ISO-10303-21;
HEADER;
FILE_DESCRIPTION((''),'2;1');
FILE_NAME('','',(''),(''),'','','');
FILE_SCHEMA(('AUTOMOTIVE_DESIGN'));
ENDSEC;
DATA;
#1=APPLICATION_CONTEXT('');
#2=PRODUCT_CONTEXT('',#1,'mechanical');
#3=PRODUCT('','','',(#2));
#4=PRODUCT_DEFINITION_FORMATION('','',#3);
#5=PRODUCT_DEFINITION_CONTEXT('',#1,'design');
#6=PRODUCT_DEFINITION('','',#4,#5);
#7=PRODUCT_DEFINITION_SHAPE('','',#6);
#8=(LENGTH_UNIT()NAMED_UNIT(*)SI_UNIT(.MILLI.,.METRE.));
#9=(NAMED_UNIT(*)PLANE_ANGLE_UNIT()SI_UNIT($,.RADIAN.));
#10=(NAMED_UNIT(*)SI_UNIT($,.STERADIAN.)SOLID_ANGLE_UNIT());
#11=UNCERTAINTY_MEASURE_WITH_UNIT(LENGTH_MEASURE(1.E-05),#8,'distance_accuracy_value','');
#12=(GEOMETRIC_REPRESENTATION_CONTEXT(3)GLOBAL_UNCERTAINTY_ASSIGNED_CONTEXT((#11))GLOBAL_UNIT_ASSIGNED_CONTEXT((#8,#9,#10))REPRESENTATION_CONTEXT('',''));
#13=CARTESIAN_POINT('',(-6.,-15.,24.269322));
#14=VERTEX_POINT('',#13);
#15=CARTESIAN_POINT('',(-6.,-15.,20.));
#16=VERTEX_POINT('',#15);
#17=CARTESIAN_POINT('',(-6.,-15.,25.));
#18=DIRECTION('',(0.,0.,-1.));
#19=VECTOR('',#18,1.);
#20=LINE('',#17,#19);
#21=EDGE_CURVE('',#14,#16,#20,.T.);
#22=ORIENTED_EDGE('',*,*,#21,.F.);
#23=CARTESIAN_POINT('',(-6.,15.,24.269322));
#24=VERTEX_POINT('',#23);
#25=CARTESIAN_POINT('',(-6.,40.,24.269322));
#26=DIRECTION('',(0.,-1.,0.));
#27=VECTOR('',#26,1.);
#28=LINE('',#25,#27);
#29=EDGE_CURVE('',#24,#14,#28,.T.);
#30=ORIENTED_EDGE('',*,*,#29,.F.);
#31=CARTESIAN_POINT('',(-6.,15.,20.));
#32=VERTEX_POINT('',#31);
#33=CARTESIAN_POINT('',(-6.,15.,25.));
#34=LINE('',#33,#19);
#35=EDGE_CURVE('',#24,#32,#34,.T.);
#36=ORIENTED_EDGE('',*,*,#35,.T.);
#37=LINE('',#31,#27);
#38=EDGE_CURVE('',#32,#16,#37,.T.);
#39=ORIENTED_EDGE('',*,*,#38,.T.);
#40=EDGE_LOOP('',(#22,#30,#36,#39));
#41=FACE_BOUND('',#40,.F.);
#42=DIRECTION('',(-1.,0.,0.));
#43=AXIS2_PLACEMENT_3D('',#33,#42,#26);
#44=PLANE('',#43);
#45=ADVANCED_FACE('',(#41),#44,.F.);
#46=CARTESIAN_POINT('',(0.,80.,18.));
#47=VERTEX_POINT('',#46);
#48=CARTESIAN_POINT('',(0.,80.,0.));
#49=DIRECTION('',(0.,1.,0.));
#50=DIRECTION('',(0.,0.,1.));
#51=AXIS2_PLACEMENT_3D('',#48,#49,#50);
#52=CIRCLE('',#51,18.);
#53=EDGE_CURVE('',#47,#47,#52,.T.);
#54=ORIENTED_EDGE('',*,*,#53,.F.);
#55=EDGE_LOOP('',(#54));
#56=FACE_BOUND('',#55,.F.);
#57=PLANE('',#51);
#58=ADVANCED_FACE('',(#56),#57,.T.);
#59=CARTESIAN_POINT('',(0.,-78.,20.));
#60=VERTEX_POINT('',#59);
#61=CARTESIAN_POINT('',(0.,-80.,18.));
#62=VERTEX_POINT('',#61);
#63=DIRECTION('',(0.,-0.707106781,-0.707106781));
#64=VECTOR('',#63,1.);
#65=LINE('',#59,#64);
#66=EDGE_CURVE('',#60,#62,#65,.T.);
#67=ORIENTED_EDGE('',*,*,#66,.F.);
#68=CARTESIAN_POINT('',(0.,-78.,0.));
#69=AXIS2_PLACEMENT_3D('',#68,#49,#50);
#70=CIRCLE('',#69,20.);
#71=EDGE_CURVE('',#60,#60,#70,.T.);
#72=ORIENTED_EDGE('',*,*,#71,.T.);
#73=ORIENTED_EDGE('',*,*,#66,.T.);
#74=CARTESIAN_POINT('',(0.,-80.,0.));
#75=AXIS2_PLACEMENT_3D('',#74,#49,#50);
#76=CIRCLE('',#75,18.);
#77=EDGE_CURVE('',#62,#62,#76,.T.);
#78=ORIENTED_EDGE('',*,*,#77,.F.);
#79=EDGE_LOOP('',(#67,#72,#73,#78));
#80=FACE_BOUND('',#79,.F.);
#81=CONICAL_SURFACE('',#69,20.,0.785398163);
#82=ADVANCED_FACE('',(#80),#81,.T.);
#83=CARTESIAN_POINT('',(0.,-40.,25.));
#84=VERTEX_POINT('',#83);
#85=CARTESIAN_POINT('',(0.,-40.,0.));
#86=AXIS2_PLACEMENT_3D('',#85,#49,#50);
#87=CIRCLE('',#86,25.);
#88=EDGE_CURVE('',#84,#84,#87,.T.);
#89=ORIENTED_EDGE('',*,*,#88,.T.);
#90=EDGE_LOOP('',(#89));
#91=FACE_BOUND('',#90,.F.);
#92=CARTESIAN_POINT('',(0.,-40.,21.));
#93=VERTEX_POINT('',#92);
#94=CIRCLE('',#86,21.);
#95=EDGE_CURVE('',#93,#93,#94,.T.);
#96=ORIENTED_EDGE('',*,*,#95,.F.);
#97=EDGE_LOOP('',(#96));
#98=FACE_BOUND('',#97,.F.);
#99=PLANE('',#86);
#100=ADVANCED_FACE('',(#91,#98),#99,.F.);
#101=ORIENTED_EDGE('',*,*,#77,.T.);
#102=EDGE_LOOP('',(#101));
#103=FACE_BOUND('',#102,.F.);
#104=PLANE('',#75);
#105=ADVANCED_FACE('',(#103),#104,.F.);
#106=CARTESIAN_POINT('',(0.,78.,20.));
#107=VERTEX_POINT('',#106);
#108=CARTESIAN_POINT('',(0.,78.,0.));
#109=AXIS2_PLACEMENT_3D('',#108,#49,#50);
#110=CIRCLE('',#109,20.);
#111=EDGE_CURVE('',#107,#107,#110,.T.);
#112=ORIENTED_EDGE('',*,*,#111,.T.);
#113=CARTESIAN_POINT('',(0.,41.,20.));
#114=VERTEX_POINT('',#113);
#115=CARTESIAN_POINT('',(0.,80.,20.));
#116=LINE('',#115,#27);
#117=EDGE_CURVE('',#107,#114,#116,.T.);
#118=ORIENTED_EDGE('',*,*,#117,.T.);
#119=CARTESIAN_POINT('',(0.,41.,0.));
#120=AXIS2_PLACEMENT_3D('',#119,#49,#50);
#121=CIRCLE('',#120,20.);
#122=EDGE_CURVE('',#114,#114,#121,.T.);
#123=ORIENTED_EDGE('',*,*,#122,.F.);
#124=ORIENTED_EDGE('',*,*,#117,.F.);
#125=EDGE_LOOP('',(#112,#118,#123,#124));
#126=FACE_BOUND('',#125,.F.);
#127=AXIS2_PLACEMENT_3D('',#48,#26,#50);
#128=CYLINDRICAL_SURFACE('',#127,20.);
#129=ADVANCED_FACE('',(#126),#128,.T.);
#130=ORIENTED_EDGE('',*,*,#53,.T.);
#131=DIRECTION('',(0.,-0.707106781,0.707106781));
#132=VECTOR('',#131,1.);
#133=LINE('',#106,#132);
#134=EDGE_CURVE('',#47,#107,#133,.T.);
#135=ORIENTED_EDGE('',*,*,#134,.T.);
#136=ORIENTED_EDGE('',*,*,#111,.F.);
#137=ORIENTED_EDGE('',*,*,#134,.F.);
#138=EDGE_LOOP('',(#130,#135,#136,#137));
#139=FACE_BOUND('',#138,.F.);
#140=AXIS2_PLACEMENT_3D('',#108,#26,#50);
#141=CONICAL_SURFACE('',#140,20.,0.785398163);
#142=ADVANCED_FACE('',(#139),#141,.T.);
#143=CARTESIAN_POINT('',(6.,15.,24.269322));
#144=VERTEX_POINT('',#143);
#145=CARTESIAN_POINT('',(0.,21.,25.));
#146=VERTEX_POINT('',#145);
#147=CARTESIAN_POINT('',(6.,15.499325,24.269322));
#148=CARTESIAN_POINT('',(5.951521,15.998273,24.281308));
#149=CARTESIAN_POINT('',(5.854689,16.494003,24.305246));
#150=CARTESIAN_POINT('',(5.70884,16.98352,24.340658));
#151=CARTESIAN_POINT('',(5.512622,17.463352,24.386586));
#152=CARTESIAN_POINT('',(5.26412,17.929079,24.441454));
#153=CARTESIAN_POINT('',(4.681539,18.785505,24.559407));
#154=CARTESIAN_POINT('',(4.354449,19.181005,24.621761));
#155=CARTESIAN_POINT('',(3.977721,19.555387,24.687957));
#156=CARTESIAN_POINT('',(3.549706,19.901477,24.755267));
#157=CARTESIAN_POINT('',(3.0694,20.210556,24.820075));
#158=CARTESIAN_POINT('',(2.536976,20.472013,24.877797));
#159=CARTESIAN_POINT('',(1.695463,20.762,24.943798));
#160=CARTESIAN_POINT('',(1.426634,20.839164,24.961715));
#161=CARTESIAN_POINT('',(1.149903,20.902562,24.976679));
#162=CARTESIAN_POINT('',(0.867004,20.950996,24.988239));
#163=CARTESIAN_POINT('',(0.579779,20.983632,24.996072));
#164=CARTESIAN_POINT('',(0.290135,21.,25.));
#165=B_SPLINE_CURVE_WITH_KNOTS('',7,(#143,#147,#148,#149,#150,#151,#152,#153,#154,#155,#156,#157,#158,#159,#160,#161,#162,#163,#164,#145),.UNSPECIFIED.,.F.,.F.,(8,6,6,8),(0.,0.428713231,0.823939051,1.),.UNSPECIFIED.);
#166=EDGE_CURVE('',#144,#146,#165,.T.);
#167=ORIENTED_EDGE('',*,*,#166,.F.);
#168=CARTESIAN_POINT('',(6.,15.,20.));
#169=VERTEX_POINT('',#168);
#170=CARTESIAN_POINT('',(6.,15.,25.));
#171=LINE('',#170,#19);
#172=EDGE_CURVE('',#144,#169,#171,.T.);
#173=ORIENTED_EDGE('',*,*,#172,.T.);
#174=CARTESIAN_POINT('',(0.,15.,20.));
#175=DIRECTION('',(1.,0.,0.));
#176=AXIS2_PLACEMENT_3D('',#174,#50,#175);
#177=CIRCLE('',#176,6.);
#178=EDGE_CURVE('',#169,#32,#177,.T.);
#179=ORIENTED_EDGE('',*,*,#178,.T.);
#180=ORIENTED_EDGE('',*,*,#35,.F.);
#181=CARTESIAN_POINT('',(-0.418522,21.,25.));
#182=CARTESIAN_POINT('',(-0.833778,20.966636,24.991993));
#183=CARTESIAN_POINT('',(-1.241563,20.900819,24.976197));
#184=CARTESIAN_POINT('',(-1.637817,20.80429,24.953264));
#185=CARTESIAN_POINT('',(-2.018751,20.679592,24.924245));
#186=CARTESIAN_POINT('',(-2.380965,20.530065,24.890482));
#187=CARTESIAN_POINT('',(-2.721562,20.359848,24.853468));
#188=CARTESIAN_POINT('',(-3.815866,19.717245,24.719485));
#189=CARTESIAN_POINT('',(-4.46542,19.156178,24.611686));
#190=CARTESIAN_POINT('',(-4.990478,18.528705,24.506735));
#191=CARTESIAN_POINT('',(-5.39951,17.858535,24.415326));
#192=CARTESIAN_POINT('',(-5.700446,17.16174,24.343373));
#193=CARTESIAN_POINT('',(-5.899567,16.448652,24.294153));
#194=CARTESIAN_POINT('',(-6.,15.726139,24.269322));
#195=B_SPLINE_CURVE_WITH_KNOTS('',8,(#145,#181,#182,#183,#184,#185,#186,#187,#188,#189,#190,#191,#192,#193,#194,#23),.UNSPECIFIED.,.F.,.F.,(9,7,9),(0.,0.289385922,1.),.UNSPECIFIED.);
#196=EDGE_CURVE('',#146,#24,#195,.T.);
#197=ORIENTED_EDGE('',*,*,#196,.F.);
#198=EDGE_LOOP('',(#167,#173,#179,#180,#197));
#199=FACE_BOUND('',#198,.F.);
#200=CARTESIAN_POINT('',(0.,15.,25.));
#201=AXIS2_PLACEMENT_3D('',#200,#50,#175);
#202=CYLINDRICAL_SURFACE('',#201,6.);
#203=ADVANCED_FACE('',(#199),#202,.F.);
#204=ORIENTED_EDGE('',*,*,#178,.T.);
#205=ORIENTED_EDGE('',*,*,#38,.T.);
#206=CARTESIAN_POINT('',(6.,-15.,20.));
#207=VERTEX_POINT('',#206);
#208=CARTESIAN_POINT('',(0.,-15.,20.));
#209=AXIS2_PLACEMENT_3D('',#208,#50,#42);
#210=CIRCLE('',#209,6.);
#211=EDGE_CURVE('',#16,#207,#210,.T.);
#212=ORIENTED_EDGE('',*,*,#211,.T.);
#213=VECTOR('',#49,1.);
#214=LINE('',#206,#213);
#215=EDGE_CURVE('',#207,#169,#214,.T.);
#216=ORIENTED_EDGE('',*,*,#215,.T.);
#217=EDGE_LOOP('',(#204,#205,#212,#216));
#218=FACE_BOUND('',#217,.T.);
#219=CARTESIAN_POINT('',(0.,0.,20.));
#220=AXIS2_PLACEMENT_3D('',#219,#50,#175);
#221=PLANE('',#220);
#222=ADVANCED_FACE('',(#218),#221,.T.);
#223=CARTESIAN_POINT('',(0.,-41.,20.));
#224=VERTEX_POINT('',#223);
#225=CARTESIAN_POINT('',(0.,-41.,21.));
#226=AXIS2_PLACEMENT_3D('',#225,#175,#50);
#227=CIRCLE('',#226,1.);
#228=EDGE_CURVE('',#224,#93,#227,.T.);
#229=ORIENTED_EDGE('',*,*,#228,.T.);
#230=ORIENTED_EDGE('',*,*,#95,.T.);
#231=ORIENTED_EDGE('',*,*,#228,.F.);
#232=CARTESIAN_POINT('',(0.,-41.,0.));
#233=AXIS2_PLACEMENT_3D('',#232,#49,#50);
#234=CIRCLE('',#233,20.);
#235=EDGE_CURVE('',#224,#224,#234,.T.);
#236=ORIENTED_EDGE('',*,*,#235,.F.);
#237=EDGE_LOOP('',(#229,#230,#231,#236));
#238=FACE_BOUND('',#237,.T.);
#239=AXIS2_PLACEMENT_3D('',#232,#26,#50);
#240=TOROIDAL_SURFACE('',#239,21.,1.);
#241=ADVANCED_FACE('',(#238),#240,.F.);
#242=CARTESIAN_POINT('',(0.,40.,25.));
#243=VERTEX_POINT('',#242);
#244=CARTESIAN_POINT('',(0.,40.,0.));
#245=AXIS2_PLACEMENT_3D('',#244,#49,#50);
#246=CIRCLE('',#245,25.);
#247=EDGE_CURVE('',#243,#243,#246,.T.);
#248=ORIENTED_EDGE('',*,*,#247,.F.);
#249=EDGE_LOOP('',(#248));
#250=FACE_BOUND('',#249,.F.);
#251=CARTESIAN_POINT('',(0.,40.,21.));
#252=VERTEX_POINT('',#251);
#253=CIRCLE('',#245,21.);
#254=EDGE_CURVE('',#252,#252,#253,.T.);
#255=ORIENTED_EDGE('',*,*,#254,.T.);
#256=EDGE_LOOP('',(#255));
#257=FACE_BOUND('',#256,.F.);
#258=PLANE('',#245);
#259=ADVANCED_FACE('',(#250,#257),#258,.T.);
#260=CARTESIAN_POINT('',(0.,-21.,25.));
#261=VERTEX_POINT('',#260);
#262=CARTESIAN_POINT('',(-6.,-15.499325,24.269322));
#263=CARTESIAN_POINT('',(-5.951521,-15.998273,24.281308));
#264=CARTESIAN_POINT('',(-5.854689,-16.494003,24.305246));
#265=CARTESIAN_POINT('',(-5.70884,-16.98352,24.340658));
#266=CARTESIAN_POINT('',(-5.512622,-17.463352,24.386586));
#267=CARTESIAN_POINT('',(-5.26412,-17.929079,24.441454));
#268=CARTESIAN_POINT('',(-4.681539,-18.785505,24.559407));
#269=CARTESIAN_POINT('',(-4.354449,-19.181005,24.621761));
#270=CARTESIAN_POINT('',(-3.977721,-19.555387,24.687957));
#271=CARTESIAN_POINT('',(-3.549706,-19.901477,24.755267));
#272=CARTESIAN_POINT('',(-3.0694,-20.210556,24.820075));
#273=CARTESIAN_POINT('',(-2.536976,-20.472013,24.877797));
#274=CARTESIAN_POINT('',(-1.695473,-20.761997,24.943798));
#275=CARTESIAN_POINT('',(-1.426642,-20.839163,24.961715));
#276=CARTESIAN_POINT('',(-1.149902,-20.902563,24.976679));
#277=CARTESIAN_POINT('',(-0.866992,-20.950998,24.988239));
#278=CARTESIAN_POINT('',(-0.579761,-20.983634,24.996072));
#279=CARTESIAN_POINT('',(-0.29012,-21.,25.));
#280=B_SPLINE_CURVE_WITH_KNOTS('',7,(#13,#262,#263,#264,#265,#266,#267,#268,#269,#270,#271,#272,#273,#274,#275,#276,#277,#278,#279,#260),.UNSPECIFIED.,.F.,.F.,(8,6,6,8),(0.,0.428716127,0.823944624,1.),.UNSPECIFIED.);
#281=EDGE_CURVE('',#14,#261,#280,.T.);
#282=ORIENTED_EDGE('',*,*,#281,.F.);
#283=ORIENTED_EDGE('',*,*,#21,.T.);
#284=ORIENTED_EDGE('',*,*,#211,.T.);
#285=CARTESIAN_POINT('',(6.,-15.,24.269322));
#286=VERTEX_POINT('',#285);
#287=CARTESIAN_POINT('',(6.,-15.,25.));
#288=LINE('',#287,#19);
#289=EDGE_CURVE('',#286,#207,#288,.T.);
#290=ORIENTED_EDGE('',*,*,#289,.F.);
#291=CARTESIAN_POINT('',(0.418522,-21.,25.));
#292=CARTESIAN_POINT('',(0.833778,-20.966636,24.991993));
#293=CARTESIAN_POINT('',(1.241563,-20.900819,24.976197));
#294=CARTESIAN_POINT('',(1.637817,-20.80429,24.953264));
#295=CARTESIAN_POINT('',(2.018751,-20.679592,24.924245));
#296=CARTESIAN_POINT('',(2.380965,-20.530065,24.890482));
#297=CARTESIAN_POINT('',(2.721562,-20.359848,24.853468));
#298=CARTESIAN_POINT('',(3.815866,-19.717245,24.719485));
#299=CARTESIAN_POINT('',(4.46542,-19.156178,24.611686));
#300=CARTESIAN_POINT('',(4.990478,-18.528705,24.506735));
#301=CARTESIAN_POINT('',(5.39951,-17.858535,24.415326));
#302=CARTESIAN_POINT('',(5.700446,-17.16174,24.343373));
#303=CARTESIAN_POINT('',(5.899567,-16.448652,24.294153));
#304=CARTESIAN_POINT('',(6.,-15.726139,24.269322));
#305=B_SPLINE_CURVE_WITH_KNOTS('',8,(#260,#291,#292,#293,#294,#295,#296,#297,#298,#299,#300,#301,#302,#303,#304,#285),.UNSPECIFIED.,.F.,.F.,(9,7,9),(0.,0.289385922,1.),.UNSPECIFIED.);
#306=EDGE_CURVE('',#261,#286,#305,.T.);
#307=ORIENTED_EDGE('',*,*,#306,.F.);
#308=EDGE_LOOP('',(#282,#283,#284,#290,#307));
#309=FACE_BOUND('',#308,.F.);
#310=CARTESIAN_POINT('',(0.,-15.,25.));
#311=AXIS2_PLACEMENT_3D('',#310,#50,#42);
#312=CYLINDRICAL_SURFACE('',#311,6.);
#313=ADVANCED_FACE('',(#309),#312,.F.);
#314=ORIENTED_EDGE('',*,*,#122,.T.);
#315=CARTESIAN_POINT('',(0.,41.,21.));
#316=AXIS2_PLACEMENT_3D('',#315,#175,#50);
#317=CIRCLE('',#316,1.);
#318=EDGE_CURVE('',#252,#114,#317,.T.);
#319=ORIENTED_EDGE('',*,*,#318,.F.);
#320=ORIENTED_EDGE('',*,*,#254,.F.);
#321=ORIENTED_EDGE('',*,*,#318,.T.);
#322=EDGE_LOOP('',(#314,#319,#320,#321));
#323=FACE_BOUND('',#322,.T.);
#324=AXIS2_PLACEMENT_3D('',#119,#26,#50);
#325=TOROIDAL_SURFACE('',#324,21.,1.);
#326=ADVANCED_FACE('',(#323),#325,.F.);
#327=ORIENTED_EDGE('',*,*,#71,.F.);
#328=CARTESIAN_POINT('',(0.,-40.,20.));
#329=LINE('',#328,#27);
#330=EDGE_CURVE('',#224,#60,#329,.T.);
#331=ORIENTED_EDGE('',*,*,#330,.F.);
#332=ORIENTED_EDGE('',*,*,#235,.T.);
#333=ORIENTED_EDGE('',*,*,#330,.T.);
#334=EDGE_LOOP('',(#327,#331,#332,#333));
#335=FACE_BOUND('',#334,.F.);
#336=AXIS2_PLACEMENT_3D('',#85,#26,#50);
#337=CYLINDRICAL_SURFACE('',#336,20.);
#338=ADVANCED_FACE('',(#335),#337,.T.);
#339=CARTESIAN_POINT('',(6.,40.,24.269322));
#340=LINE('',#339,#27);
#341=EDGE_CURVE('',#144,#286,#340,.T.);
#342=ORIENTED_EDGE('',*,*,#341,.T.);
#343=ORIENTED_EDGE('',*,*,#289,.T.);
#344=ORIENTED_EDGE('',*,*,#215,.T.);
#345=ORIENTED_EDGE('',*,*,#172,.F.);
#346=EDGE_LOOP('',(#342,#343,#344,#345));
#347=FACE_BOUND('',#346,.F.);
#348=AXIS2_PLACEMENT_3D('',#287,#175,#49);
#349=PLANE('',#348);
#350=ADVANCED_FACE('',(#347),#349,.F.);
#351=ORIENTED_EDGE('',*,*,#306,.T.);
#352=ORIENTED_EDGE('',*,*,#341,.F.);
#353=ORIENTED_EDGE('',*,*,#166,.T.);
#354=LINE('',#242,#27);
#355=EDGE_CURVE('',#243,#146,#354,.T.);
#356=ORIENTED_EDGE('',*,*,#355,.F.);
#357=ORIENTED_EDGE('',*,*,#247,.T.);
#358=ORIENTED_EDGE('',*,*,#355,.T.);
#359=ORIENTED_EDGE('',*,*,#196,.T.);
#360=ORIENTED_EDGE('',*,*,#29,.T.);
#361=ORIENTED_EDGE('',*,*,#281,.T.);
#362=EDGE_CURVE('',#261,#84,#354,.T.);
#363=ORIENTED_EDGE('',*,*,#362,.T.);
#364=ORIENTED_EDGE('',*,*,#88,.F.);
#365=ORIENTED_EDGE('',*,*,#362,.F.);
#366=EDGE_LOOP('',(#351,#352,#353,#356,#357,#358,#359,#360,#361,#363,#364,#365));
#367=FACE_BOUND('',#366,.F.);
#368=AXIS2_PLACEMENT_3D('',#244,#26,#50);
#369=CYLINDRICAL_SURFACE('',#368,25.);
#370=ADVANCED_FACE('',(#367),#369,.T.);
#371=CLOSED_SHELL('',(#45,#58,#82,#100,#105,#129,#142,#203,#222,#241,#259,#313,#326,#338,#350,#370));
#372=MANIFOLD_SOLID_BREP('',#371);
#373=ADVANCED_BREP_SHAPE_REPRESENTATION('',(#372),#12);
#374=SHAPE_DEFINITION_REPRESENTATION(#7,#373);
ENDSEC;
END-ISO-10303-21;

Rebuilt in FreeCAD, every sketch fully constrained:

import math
import FreeCAD as App
import Part
import Sketcher
Q = App.Units.Quantity


def edges_at(feature, points):
    """Names of the edges that pass closest to the given points."""
    edges = feature.Shape.Edges
    near = lambda p: min(range(len(edges)), key=lambda i: edges[i].distToShape(Part.Vertex(*p))[0])
    return sorted({f"Edge{near(p) + 1}" for p in points})

doc = App.newDocument("Part")
body = doc.addObject("PartDesign::Body", "Body")

# Sketch on YZ plane
sketch1 = body.newObject("Sketcher::SketchObject", "Sketch")
sketch1.AttachmentSupport = (doc.getObject("YZ_Plane"), [""])
sketch1.MapMode = "FlatFace"
sketch1.addGeometry(Part.LineSegment(App.Vector(-40, 25, 0), App.Vector(-40, 20, 0)), False)
sketch1.addGeometry(Part.LineSegment(App.Vector(-40, 20, 0), App.Vector(-80, 20, 0)), False)
sketch1.addGeometry(Part.LineSegment(App.Vector(-80, 20, 0), App.Vector(-80, 0, 0)), False)
sketch1.addGeometry(Part.LineSegment(App.Vector(-80, 0, 0), App.Vector(80, 0, 0)), False)
sketch1.addGeometry(Part.LineSegment(App.Vector(80, 0, 0), App.Vector(80, 20, 0)), False)
sketch1.addGeometry(Part.LineSegment(App.Vector(80, 20, 0), App.Vector(40, 20, 0)), False)
sketch1.addGeometry(Part.LineSegment(App.Vector(40, 20, 0), App.Vector(40, 25, 0)), False)
sketch1.addGeometry(Part.LineSegment(App.Vector(40, 25, 0), App.Vector(-40, 25, 0)), False)
sketch1.addConstraint(Sketcher.Constraint("Coincident", 0, 2, 1, 1))
sketch1.addConstraint(Sketcher.Constraint("Coincident", 1, 2, 2, 1))
sketch1.addConstraint(Sketcher.Constraint("Coincident", 2, 2, 3, 1))
sketch1.addConstraint(Sketcher.Constraint("Coincident", 3, 2, 4, 1))
sketch1.addConstraint(Sketcher.Constraint("Coincident", 4, 2, 5, 1))
sketch1.addConstraint(Sketcher.Constraint("Coincident", 5, 2, 6, 1))
sketch1.addConstraint(Sketcher.Constraint("Coincident", 6, 2, 7, 1))
sketch1.addConstraint(Sketcher.Constraint("Coincident", 7, 2, 0, 1))
sketch1.addConstraint(Sketcher.Constraint("Vertical", 0))
sketch1.addConstraint(Sketcher.Constraint("Horizontal", 1))
sketch1.addConstraint(Sketcher.Constraint("Vertical", 2))
sketch1.addConstraint(Sketcher.Constraint("Horizontal", 3))
sketch1.addConstraint(Sketcher.Constraint("Vertical", 4))
sketch1.addConstraint(Sketcher.Constraint("Horizontal", 5))
sketch1.addConstraint(Sketcher.Constraint("Vertical", 6))
sketch1.addConstraint(Sketcher.Constraint("Horizontal", 7))
sketch1.addConstraint(Sketcher.Constraint("Symmetric", 2, 2, 3, 2, -1, 1))
sketch1.addConstraint(Sketcher.Constraint("Symmetric", 0, 2, 5, 2, -2))
sketch1.addConstraint(Sketcher.Constraint("DistanceX", 1, 2, 1, 1, Q("40 mm")))
sketch1.addConstraint(Sketcher.Constraint("DistanceX", 3, 1, 3, 2, Q("160 mm")))
sketch1.addConstraint(Sketcher.Constraint("DistanceY", 0, 2, 0, 1, Q("5 mm")))
sketch1.addConstraint(Sketcher.Constraint("DistanceY", 2, 2, 2, 1, Q("20 mm")))
revolution = body.newObject("PartDesign::Revolution", "Revolution")
revolution.Profile = sketch1
revolution.ReferenceAxis = (sketch1, ["H_Axis"])
revolution.Angle = 360
doc.recompute()

chamfer = body.newObject("PartDesign::Chamfer", "Chamfer")
chamfer.Base = (revolution, edges_at(revolution, [(0, -80, -20), (0, 80, -20)]))
chamfer.Size = 2
doc.recompute()

fillet = body.newObject("PartDesign::Fillet", "Fillet")
fillet.Base = (chamfer, edges_at(chamfer, [(0, -40, -20)]))
fillet.Radius = 1
doc.recompute()

fillet2 = body.newObject("PartDesign::Fillet", "Fillet001")
fillet2.Base = (fillet, edges_at(fillet, [(0, 40, -20)]))
fillet2.Radius = 1

# Sketch on XY plane
sketch2 = body.newObject("Sketcher::SketchObject", "Sketch001")
sketch2.AttachmentSupport = (doc.getObject("XY_Plane"), [""])
sketch2.MapMode = "FlatFace"
sketch2.AttachmentOffset = App.Placement(App.Vector(0, 0, 25), App.Rotation())
sketch2.addGeometry(Part.LineSegment(App.Vector(-6, 15, 0), App.Vector(-6, -15, 0)), False)
sketch2.addGeometry(Part.ArcOfCircle(Part.Circle(App.Vector(0, -15, 0), App.Vector(0, 0, 1), 6), math.radians(180), math.radians(360)), False)
sketch2.addGeometry(Part.LineSegment(App.Vector(6, -15, 0), App.Vector(6, 15, 0)), False)
sketch2.addGeometry(Part.ArcOfCircle(Part.Circle(App.Vector(0, 15, 0), App.Vector(0, 0, 1), 6), math.radians(0), math.radians(180)), False)
sketch2.addConstraint(Sketcher.Constraint("Tangent", 0, 2, 1, 1))
sketch2.addConstraint(Sketcher.Constraint("Tangent", 1, 2, 2, 1))
sketch2.addConstraint(Sketcher.Constraint("Tangent", 2, 2, 3, 1))
sketch2.addConstraint(Sketcher.Constraint("Tangent", 3, 2, 0, 1))
sketch2.addConstraint(Sketcher.Constraint("Vertical", 0))
sketch2.addConstraint(Sketcher.Constraint("Vertical", 2))
sketch2.addConstraint(Sketcher.Constraint("Symmetric", 1, 3, 3, 3, -1, 1))
sketch2.addConstraint(Sketcher.Constraint("Radius", 1, Q("6 mm")))
sketch2.addConstraint(Sketcher.Constraint("DistanceY", 0, 2, 0, 1, Q("30 mm")))
pocket1 = body.newObject("PartDesign::Pocket", "Pocket")
pocket1.Profile = sketch2
pocket1.Length = 5

doc.recompute()
